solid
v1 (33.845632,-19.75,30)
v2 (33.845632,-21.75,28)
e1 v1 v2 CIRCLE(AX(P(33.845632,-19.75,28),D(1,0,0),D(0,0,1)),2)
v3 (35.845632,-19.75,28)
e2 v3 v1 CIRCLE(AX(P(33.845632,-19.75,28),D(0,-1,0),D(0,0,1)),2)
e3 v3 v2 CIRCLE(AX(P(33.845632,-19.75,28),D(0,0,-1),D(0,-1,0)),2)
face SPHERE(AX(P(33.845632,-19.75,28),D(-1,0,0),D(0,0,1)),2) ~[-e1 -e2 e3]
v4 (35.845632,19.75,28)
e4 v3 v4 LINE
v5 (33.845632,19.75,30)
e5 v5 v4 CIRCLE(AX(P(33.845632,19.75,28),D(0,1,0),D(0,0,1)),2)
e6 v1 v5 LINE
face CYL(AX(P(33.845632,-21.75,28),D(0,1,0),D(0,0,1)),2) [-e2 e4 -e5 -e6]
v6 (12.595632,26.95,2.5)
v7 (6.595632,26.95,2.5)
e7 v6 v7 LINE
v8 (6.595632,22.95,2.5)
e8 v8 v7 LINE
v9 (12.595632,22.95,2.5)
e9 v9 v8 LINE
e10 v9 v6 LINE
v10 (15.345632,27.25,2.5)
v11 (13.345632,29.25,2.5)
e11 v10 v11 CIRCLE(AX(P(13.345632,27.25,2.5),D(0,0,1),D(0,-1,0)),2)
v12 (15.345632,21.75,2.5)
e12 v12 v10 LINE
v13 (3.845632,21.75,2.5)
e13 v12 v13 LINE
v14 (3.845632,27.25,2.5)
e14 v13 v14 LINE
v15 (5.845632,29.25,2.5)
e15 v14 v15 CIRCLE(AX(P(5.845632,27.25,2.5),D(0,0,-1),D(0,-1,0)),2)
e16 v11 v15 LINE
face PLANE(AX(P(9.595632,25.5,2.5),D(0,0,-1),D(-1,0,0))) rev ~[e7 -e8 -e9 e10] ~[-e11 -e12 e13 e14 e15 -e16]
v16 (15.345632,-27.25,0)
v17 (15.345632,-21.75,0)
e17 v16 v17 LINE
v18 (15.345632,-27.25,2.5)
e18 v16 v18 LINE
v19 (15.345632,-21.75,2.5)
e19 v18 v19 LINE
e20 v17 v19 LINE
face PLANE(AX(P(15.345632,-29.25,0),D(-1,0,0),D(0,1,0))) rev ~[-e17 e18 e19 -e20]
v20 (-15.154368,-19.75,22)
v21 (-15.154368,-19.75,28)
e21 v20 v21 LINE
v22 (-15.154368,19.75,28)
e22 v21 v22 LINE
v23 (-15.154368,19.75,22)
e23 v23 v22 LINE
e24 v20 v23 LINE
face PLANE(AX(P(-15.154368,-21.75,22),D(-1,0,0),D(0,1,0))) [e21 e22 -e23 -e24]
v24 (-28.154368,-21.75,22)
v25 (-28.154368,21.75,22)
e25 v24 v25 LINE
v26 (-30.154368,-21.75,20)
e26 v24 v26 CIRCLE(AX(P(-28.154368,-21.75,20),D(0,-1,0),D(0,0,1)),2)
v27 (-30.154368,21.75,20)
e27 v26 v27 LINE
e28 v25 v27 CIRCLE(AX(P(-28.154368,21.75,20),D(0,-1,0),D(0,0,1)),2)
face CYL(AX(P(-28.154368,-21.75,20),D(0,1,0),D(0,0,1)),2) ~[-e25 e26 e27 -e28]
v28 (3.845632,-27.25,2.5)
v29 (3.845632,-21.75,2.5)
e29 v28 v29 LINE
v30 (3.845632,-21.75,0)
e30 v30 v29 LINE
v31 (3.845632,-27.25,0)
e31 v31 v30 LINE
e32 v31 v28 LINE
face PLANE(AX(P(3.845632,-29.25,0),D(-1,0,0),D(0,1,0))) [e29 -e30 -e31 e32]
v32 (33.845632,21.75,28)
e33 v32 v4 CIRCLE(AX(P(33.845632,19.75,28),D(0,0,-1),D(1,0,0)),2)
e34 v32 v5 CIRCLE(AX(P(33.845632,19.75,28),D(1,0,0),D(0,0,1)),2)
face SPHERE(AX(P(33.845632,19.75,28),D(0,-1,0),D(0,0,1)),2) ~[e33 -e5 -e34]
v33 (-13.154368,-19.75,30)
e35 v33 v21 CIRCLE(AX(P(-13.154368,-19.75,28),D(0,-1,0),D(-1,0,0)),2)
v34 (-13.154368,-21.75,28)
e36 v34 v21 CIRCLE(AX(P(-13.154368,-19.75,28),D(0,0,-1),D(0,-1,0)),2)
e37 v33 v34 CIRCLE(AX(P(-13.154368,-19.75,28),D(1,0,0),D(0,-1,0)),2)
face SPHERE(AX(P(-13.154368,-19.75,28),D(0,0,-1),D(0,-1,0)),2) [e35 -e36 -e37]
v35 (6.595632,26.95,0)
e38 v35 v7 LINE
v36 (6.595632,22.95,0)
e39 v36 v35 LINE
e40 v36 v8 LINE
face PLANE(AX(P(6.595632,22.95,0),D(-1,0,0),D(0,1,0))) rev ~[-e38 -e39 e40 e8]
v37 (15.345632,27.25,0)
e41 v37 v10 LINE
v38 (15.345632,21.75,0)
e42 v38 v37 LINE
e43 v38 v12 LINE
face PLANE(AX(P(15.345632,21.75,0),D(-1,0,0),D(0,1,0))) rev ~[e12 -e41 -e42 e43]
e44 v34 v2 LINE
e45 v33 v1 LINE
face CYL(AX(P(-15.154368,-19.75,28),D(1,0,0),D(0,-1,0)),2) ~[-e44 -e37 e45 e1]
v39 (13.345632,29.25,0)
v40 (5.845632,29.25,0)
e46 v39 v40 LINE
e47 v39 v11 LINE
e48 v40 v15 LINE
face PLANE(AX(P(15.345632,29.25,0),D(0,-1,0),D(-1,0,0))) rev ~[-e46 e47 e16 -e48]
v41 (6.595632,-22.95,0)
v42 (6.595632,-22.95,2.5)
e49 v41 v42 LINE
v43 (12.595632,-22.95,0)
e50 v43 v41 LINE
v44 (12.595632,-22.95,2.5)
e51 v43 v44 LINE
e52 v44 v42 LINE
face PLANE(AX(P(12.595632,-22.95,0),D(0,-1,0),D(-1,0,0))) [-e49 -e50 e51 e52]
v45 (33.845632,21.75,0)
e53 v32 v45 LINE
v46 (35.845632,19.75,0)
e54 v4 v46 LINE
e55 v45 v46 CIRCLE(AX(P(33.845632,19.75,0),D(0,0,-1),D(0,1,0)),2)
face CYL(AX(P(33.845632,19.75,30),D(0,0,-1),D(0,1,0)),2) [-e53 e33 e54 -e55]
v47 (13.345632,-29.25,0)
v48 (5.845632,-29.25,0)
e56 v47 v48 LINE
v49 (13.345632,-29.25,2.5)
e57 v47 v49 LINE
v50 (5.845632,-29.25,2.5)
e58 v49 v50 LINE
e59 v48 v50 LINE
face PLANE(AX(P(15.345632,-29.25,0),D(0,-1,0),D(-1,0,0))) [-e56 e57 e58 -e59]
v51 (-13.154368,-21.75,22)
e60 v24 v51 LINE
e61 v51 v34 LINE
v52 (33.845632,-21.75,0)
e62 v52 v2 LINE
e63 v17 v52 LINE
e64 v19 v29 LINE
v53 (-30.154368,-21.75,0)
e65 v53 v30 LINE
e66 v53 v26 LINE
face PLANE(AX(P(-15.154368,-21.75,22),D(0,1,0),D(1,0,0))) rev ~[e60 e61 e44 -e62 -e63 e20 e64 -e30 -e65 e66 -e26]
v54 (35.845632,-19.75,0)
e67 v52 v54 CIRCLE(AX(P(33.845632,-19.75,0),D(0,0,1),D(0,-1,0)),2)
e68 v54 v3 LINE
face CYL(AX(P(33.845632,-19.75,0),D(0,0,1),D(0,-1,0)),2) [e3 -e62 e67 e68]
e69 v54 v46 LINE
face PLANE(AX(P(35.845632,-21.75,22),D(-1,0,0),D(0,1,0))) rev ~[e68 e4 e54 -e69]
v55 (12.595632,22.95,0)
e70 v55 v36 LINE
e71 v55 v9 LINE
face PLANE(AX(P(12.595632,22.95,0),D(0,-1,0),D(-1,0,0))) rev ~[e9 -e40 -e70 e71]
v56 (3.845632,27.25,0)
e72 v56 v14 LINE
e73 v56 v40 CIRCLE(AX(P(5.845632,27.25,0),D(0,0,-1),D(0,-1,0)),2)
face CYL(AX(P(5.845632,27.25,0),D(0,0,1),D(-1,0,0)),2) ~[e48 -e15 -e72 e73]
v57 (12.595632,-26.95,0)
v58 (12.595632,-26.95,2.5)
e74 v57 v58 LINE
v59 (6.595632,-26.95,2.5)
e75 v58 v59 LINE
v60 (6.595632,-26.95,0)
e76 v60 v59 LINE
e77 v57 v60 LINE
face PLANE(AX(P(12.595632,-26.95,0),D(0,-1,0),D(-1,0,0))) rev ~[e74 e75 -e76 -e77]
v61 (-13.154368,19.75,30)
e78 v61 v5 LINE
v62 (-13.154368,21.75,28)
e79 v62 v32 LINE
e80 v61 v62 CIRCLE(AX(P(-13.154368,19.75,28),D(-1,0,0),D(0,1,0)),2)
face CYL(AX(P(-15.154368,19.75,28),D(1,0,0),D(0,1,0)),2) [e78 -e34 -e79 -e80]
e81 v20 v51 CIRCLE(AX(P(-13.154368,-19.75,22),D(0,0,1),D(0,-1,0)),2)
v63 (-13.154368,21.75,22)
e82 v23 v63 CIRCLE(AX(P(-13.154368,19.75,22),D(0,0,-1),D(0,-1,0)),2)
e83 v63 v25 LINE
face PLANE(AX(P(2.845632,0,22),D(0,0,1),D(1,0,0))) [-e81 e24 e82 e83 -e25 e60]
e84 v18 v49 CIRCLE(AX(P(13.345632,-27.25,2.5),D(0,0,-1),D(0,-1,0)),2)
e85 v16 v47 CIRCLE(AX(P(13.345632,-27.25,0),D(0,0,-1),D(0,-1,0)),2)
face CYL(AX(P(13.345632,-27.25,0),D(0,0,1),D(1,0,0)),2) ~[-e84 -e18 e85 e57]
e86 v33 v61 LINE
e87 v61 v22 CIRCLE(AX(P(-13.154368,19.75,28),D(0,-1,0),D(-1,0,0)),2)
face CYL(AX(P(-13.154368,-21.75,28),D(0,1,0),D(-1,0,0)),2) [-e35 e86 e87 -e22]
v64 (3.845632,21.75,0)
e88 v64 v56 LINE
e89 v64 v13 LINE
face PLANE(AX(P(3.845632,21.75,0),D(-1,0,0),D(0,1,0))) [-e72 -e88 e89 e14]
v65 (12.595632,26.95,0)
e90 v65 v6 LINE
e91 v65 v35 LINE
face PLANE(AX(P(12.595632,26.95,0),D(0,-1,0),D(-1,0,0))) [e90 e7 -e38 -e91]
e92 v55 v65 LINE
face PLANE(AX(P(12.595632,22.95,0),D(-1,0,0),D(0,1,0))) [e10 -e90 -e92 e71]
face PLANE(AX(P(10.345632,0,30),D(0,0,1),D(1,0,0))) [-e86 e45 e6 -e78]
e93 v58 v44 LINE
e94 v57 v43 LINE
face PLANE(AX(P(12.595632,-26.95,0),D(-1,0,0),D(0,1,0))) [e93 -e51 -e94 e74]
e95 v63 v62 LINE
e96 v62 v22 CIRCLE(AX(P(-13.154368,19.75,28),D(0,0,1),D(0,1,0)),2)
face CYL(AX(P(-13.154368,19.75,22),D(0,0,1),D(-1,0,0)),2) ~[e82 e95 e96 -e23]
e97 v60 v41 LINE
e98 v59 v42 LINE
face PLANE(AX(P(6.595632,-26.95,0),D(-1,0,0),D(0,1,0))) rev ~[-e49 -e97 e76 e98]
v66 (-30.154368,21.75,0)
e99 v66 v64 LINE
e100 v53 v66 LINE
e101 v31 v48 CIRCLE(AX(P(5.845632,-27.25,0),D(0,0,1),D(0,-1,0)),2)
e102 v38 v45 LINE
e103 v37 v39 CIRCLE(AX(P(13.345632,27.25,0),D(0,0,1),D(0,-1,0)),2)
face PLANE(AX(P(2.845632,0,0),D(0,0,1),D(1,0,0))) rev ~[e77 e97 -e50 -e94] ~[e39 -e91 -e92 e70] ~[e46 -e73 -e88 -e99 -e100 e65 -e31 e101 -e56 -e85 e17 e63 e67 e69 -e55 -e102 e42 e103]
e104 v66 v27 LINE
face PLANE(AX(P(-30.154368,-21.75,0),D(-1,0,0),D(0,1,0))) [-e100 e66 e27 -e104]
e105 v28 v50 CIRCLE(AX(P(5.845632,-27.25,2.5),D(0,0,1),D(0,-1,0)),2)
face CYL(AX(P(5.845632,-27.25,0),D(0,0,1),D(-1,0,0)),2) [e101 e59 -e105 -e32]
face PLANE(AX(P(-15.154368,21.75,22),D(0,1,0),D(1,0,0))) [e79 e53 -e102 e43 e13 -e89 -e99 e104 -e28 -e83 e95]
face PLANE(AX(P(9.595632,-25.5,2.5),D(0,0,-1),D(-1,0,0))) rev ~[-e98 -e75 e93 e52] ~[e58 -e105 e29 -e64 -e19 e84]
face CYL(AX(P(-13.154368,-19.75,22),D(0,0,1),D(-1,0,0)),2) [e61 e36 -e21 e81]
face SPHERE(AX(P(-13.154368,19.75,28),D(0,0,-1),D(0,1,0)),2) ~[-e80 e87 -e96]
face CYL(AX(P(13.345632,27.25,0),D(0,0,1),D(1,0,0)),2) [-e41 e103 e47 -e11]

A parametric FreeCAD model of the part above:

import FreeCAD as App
import Part
import Sketcher

V = App.Vector


def edges_at(feature, points):
    """Names of the edges that pass closest to the given points."""
    edges = feature.Shape.Edges
    near = lambda p: min(range(len(edges)), key=lambda i: edges[i].distToShape(Part.Vertex(*p))[0])
    return sorted({f"Edge{near(p) + 1}" for p in points})


def add_polygon(sketch, points):
    """Adds a closed chain of lines whose ends are joined by coincident constraints."""
    first, n = sketch.GeometryCount, len(points)
    for a, b in zip(points, points[1:] + points[:1]):
        sketch.addGeometry(Part.LineSegment(App.Vector(*a, 0), App.Vector(*b, 0)), False)
    for i in range(n):
        sketch.addConstraint(Sketcher.Constraint("Coincident", first + i, 2, first + (i + 1) % n, 1))

doc = App.newDocument("Part")
body = doc.addObject("PartDesign::Body", "Body")

# Sketch on XY plane
sketch1 = doc.addObject("Sketcher::SketchObject", "Sketch")
body.addObject(sketch1)
sketch1.AttachmentSupport = (doc.XY_Plane, [""])
sketch1.MapMode = "FlatFace"
add_polygon(sketch1, [(-30.154368, 21.75), (-30.154368, -21.75), (35.845632, -21.75), (35.845632, 21.75)])  # lines 0-3
sketch1.addConstraint([
    Sketcher.Constraint("Vertical", 0),
    Sketcher.Constraint("Horizontal", 1),
    Sketcher.Constraint("Vertical", 2),
    Sketcher.Constraint("Horizontal", 3),
    Sketcher.Constraint("DistanceX", 1, 1, 1, 2, 66.0),
    Sketcher.Constraint("DistanceY", 0, 2, 0, 1, 43.5),
    Sketcher.Constraint("DistanceY", 0, 2, -1, 1, 21.75),
    Sketcher.Constraint("DistanceX", 0, 2, -1, 1, 30.154368),
])
pad1 = doc.addObject("PartDesign::Pad", "Pad")
body.addObject(pad1)
pad1.Profile = sketch1
pad1.Length = 22

# Sketch on XY plane
sketch2 = doc.addObject("Sketcher::SketchObject", "Sketch001")
body.addObject(sketch2)
sketch2.AttachmentSupport = (doc.XY_Plane, [""])
sketch2.MapMode = "FlatFace"
sketch2.AttachmentOffset = App.Placement(V(0, 0, 22), App.Rotation())
add_polygon(sketch2, [(-15.154368, 21.75), (-15.154368, -21.75), (35.845632, -21.75), (35.845632, 21.75)])  # lines 0-3
sketch2.addConstraint([
    Sketcher.Constraint("Vertical", 0),
    Sketcher.Constraint("Horizontal", 1),
    Sketcher.Constraint("Vertical", 2),
    Sketcher.Constraint("Horizontal", 3),
    Sketcher.Constraint("DistanceX", 1, 1, 1, 2, 51.0),
    Sketcher.Constraint("DistanceY", 0, 2, 0, 1, 43.5),
    Sketcher.Constraint("DistanceY", 0, 2, -1, 1, 21.75),
    Sketcher.Constraint("DistanceX", 0, 2, -1, 1, 15.154368),
])
pad2 = doc.addObject("PartDesign::Pad", "Pad001")
body.addObject(pad2)
pad2.Profile = sketch2
pad2.Length = 8

# Sketch on XY plane
sketch3 = doc.addObject("Sketcher::SketchObject", "Sketch002")
body.addObject(sketch3)
sketch3.AttachmentSupport = (doc.XY_Plane, [""])
sketch3.MapMode = "FlatFace"
add_polygon(sketch3, [(15.345632, 29.25), (15.345632, 21.75), (3.845632, 21.75), (3.845632, 29.25)])  # lines 0-3
add_polygon(sketch3, [(6.595632, 22.95), (12.595632, 22.95), (12.595632, 26.95), (6.595632, 26.95)])  # lines 4-7
add_polygon(sketch3, [(15.345632, -21.75), (15.345632, -29.25), (3.845632, -29.25), (3.845632, -21.75)])  # lines 8-11
add_polygon(sketch3, [(6.595632, -26.95), (12.595632, -26.95), (12.595632, -22.95), (6.595632, -22.95)])  # lines 12-15
sketch3.addConstraint([
    Sketcher.Constraint("Vertical", 0),
    Sketcher.Constraint("Horizontal", 1),
    Sketcher.Constraint("Vertical", 2),
    Sketcher.Constraint("Horizontal", 3),
    Sketcher.Constraint("Horizontal", 4),
    Sketcher.Constraint("Vertical", 5),
    Sketcher.Constraint("Horizontal", 6),
    Sketcher.Constraint("Vertical", 7),
    Sketcher.Constraint("Vertical", 8),
    Sketcher.Constraint("Horizontal", 9),
    Sketcher.Constraint("Vertical", 10),
    Sketcher.Constraint("Horizontal", 11),
    Sketcher.Constraint("Horizontal", 12),
    Sketcher.Constraint("Vertical", 13),
    Sketcher.Constraint("Horizontal", 14),
    Sketcher.Constraint("Vertical", 15),
    Sketcher.Constraint("Symmetric", 3, 2, 8, 2, -1),
    Sketcher.Constraint("Symmetric", 1, 2, 10, 2, -1),
    Sketcher.Constraint("Symmetric", 5, 2, 12, 2, -1),
    Sketcher.Constraint("Symmetric", 7, 2, 14, 2, -1),
    Sketcher.Constraint("DistanceX", 4, 1, 4, 2, 6.0),
    Sketcher.Constraint("DistanceY", 5, 1, 5, 2, 4.0),
    Sketcher.Constraint("DistanceX", 1, 2, 1, 1, 11.5),
    Sketcher.Constraint("DistanceY", 0, 2, 0, 1, 7.5),
    Sketcher.Constraint("DistanceY", 8, 2, 0, 2, 51.0),
    Sketcher.Constraint("DistanceY", 0, 2, 4, 2, 1.2),
    Sketcher.Constraint("DistanceX", 4, 2, 0, 2, 2.75),
    Sketcher.Constraint("DistanceX", -1, 1, 0, 2, 15.345632),
])
pad3 = doc.addObject("PartDesign::Pad", "Pad002")
body.addObject(pad3)
pad3.Profile = sketch3
pad3.Length = 2.5
doc.recompute()

fillet = doc.addObject("PartDesign::Fillet", "Fillet")
body.addObject(fillet)
fillet.Base = (pad3, edges_at(pad3, [
    (-15.154, 21.75, 26),
    (-15.154, -21.75, 26),
    (10.346, -21.75, 30),
    (35.846, 0, 30),
    (10.346, 21.75, 30),
    (-15.154, 0, 30),
    (15.346, 29.25, 1.25),
    (3.846, 29.25, 1.25),
    (-30.154, 0, 22),
    (15.346, -29.25, 1.25),
    (3.846, -29.25, 1.25),
    (35.846, 21.75, 15),
    (35.846, -21.75, 15),
]))
fillet.Radius = 2

doc.recompute()
